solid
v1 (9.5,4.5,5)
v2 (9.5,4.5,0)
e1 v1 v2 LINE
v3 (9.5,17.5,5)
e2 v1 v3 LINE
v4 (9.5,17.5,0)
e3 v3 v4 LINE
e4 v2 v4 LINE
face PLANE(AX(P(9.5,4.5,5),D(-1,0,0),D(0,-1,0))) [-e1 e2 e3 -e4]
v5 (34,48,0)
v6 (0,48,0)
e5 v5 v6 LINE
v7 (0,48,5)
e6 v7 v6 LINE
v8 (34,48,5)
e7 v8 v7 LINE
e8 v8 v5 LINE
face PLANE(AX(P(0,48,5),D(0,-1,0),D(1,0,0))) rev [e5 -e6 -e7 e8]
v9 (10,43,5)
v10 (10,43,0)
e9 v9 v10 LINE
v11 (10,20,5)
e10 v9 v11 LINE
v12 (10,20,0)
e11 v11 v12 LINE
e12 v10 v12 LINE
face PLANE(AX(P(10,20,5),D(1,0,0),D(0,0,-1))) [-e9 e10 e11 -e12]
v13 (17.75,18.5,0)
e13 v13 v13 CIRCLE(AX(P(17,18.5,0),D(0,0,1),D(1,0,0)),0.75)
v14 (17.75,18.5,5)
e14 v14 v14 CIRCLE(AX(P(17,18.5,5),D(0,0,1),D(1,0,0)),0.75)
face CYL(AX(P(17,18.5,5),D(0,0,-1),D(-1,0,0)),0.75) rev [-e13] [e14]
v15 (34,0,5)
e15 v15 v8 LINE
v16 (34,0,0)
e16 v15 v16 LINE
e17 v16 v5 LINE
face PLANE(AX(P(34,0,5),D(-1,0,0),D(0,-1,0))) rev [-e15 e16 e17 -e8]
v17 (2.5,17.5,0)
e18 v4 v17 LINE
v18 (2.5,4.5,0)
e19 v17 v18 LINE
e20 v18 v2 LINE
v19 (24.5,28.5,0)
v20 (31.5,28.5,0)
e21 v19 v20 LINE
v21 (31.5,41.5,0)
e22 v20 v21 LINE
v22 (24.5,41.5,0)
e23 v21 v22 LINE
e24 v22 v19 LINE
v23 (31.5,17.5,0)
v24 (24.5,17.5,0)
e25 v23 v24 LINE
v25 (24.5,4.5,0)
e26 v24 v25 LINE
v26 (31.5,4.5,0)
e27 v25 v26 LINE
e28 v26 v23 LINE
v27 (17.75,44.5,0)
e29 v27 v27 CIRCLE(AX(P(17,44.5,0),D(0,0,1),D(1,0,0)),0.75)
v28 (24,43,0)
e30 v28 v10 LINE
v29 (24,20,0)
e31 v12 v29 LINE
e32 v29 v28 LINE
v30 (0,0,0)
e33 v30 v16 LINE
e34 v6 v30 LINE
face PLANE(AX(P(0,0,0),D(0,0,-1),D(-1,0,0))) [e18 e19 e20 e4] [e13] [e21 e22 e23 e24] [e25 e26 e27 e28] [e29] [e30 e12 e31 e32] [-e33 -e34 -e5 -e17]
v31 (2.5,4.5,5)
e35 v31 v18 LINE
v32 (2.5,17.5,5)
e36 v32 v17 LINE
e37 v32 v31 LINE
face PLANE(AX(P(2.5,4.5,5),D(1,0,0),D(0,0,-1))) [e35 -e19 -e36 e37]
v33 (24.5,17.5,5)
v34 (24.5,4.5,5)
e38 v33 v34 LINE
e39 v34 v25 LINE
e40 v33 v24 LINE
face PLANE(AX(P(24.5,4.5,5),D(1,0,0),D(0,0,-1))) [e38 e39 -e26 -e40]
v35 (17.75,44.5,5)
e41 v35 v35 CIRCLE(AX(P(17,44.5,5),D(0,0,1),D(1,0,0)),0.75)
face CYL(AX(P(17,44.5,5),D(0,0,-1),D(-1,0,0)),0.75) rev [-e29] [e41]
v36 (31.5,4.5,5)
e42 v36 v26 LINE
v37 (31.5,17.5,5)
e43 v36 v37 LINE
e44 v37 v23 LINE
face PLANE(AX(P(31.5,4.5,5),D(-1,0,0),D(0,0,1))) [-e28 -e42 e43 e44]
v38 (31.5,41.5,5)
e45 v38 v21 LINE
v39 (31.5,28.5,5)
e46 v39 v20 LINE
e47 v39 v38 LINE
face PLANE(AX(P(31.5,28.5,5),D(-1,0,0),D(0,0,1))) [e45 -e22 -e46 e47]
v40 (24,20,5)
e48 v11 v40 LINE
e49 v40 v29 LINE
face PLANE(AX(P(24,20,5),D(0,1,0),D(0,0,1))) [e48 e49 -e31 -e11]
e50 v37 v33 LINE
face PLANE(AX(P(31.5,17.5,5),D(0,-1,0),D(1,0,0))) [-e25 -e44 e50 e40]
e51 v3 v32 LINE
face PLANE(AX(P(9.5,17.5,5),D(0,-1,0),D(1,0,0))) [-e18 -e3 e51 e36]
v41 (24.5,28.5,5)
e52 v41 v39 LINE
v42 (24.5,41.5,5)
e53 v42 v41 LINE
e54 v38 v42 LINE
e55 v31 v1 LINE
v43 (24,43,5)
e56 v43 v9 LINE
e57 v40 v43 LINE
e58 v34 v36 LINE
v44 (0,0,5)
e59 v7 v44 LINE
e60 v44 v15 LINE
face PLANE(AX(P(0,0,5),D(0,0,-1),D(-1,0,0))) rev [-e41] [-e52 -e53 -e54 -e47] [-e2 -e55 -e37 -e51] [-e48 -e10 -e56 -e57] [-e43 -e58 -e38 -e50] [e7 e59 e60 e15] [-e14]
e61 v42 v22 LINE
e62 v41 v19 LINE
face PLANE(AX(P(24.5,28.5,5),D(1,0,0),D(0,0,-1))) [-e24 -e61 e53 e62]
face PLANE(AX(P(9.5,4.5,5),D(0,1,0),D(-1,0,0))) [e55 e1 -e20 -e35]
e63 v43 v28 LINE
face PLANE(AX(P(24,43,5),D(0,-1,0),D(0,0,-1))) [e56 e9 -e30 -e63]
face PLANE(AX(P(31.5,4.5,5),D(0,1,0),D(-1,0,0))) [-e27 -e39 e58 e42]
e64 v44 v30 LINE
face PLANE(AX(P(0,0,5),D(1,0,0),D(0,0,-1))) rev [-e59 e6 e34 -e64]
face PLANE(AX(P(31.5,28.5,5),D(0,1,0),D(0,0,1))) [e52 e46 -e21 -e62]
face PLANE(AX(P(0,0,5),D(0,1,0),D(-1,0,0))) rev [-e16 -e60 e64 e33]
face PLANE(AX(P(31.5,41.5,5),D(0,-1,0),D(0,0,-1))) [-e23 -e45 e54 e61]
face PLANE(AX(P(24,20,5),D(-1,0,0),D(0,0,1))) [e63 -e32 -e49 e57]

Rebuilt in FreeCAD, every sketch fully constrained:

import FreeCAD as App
import Part
import Sketcher
Q = App.Units.Quantity


def add_polygon(sketch, points):
    """Adds a closed chain of lines whose ends are joined by coincident constraints."""
    first, n = sketch.GeometryCount, len(points)
    for a, b in zip(points, points[1:] + points[:1]):
        sketch.addGeometry(Part.LineSegment(App.Vector(*a, 0), App.Vector(*b, 0)), False)
    for i in range(n):
        sketch.addConstraint(Sketcher.Constraint("Coincident", first + i, 2, first + (i + 1) % n, 1))

doc = App.newDocument("Part")
body = doc.addObject("PartDesign::Body", "Body")

# Sketch on XY plane
sketch1 = body.newObject("Sketcher::SketchObject", "Sketch")
sketch1.AttachmentSupport = (doc.getObject("XY_Plane"), [""])
sketch1.MapMode = "FlatFace"
add_polygon(sketch1, [(0, 48), (0, 0), (34, 0), (34, 48)])  # lines 0-3
add_polygon(sketch1, [(9.5, 4.5), (2.5, 4.5), (2.5, 17.5), (9.5, 17.5)])  # lines 4-7
add_polygon(sketch1, [(31.5, 4.5), (24.5, 4.5), (24.5, 17.5), (31.5, 17.5)])  # lines 8-11
sketch1.addGeometry(Part.Circle(App.Vector(17, 18.5, 0), App.Vector(0, 0, 1), 0.8), False)  # 12
add_polygon(sketch1, [(24, 20), (10, 20), (10, 43), (24, 43)])  # lines 13-16
add_polygon(sketch1, [(31.5, 28.5), (24.5, 28.5), (24.5, 41.5), (31.5, 41.5)])  # lines 17-20
sketch1.addGeometry(Part.Circle(App.Vector(17, 44.5, 0), App.Vector(0, 0, 1), 0.8), False)  # 21
sketch1.addConstraint([
    Sketcher.Constraint("Vertical", 0),
    Sketcher.Constraint("Horizontal", 1),
    Sketcher.Constraint("Vertical", 2),
    Sketcher.Constraint("Horizontal", 3),
    Sketcher.Constraint("Horizontal", 4),
    Sketcher.Constraint("Vertical", 5),
    Sketcher.Constraint("Horizontal", 6),
    Sketcher.Constraint("Vertical", 7),
    Sketcher.Constraint("Horizontal", 8),
    Sketcher.Constraint("Vertical", 9),
    Sketcher.Constraint("Horizontal", 10),
    Sketcher.Constraint("Vertical", 11),
    Sketcher.Constraint("Horizontal", 13),
    Sketcher.Constraint("Vertical", 14),
    Sketcher.Constraint("Horizontal", 15),
    Sketcher.Constraint("Vertical", 16),
    Sketcher.Constraint("Horizontal", 17),
    Sketcher.Constraint("Vertical", 18),
    Sketcher.Constraint("Horizontal", 19),
    Sketcher.Constraint("Vertical", 20),
    Sketcher.Constraint("Coincident", 0, 2, -1, 1),
    Sketcher.Constraint("Equal", 12, 21),
    Sketcher.Constraint("Horizontal", 7, 2, 8, 2),
    Sketcher.Constraint("Horizontal", 6, 2, 9, 2),
    Sketcher.Constraint("Vertical", 12, 3, 21, 3),
    Sketcher.Constraint("Vertical", 9, 2, 17, 2),
    Sketcher.Constraint("Vertical", 11, 2, 19, 2),
    Sketcher.Constraint("Equal", 6, 8),
    Sketcher.Constraint("Equal", 11, 18),
    Sketcher.Constraint("Diameter", 12, Q("1.5 mm")),
    Sketcher.Constraint("DistanceX", 1, 1, 1, 2, Q("34 mm")),
    Sketcher.Constraint("DistanceX", 4, 2, 4, 1, Q("7 mm")),
    Sketcher.Constraint("DistanceX", 13, 2, 13, 1, Q("14 mm")),
    Sketcher.Constraint("DistanceY", 0, 2, 0, 1, Q("48 mm")),
    Sketcher.Constraint("DistanceY", 5, 1, 5, 2, Q("13 mm")),
    Sketcher.Constraint("DistanceY", 14, 1, 14, 2, Q("23 mm")),
    Sketcher.Constraint("DistanceX", -1, 1, 12, 3, Q("17 mm")),
    Sketcher.Constraint("DistanceX", -1, 1, 13, 2, Q("10 mm")),
    Sketcher.Constraint("DistanceY", -1, 1, 13, 2, Q("20 mm")),
    Sketcher.Constraint("DistanceY", 12, 3, 21, 3, Q("26 mm")),
    Sketcher.Constraint("DistanceY", 4, 2, 12, 3, Q("14 mm")),
    Sketcher.Constraint("DistanceX", 7, 2, 8, 2, Q("15 mm")),
    Sketcher.Constraint("DistanceY", 9, 2, 17, 2, Q("11 mm")),
    Sketcher.Constraint("DistanceY", -1, 1, 12, 3, Q("18.5 mm")),
    Sketcher.Constraint("DistanceX", -1, 1, 4, 2, Q("2.5 mm")),
])
pad1 = body.newObject("PartDesign::Pad", "Pad")
pad1.Profile = sketch1
pad1.Length = 5

doc.recompute()
